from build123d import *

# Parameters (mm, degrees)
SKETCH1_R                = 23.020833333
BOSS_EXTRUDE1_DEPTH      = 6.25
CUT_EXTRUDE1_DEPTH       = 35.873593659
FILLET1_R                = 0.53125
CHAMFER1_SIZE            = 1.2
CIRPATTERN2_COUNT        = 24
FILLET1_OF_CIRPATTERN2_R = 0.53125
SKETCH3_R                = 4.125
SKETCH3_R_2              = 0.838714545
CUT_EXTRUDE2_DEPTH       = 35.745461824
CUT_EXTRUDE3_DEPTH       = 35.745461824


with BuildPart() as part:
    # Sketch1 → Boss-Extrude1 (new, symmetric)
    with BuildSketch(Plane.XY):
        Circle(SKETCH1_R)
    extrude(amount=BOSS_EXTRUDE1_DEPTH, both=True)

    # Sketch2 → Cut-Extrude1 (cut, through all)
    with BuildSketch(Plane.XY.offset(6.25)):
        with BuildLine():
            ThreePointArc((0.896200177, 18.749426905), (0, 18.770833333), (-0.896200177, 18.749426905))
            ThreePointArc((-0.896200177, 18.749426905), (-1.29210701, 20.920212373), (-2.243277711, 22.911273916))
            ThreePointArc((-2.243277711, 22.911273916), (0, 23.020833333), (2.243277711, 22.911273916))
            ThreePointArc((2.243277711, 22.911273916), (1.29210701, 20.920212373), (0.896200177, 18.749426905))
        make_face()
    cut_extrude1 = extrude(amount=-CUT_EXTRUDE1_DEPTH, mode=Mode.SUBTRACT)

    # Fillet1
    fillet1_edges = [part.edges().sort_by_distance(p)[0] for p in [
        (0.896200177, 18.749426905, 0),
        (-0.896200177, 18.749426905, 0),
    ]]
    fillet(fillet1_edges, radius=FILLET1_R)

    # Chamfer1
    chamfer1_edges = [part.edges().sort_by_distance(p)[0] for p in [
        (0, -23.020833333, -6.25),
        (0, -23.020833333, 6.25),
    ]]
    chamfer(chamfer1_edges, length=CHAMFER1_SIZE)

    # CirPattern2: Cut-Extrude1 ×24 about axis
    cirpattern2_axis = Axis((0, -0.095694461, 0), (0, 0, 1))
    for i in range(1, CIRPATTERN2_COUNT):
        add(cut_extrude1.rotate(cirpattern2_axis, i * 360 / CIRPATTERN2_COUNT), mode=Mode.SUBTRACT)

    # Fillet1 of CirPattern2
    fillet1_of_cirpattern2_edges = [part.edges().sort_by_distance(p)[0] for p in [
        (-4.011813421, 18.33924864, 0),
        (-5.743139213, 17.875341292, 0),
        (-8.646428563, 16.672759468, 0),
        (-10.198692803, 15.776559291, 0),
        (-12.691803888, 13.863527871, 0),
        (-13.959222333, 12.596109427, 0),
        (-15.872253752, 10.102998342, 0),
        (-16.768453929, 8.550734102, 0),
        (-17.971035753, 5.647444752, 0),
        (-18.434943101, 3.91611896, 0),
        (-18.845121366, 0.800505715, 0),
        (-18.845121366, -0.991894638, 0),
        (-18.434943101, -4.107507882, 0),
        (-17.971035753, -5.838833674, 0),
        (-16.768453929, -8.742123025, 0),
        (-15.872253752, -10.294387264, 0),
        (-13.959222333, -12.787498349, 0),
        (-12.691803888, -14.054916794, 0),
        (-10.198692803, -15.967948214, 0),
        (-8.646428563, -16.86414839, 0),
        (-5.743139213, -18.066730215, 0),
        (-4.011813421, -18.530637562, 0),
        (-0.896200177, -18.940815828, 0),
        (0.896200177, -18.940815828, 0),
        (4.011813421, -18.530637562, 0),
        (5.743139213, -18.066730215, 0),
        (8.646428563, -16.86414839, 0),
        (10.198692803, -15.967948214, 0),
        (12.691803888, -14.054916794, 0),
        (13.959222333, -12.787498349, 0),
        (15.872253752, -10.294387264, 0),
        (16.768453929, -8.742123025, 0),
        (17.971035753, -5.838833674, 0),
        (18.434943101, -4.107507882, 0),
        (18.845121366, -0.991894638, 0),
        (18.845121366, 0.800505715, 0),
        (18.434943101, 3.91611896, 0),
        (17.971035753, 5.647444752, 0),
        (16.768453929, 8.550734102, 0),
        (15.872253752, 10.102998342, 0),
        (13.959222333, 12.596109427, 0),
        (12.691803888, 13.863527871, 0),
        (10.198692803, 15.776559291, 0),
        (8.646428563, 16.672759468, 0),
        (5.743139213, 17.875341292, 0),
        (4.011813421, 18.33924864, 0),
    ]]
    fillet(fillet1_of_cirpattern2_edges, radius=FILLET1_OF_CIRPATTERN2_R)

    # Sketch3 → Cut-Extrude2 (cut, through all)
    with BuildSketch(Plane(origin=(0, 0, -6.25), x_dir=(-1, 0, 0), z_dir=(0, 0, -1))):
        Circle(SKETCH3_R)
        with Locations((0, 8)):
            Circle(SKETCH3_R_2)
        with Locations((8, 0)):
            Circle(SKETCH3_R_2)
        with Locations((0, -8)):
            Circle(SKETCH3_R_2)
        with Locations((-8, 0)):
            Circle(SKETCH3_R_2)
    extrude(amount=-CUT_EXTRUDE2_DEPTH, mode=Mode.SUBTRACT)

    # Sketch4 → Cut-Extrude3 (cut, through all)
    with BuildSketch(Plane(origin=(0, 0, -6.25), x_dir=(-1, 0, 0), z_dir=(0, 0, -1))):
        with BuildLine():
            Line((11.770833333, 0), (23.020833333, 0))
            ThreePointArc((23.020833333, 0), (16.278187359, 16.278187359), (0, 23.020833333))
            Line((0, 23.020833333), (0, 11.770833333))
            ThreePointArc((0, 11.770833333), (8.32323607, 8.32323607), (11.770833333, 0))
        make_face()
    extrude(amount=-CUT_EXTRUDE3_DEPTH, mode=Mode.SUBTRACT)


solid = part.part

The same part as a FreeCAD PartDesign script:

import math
import FreeCAD as App
import Part
import Sketcher


def edges_at(feature, points):
    """Names of the edges that pass closest to the given points."""
    edges = feature.Shape.Edges
    near = lambda p: min(range(len(edges)), key=lambda i: edges[i].distToShape(Part.Vertex(*p))[0])
    return sorted({f"Edge{near(p) + 1}" for p in points})

doc = App.newDocument("Part")
body = doc.addObject("PartDesign::Body", "Body")

# Sketch on XY plane
sketch1 = body.newObject("Sketcher::SketchObject", "Sketch")
sketch1.AttachmentSupport = (doc.getObject("XY_Plane"), [""])
sketch1.MapMode = "FlatFace"
sketch1.addGeometry(Part.Circle(App.Vector(0, 0, 0), App.Vector(0, 0, 1), 23), False)
sketch1.addConstraint(Sketcher.Constraint("Coincident", 0, 3, -1, 1))
sketch1.addConstraint(Sketcher.Constraint("Diameter", 0, 46.041667))
pad1 = body.newObject("PartDesign::Pad", "Pad")
pad1.Profile = sketch1
pad1.Length = 12.5
pad1.Midplane = True

# Sketch on XY plane
sketch2 = body.newObject("Sketcher::SketchObject", "Sketch001")
sketch2.AttachmentSupport = (doc.getObject("XY_Plane"), [""])
sketch2.MapMode = "FlatFace"
sketch2.AttachmentOffset = App.Placement(App.Vector(0, 0, 6.25), App.Rotation())
sketch2.addGeometry(Part.ArcOfCircle(Part.Circle(App.Vector(0, 0, 0), App.Vector(0, 0, 1), 18.8), math.radians(87.26), math.radians(92.74)), False)
sketch2.addGeometry(Part.ArcOfCircle(Part.Circle(App.Vector(9.2, 18.4, 0), App.Vector(0, 0, 1), 8.3), math.radians(147), math.radians(177)), False)
sketch2.addGeometry(Part.ArcOfCircle(Part.Circle(App.Vector(0, 0, 0), App.Vector(0, 0, 1), 23), math.radians(84.41), math.radians(95.59)), False)
sketch2.addGeometry(Part.ArcOfCircle(Part.Circle(App.Vector(-9.2, 18.4, 0), App.Vector(0, 0, 1), 8.3), math.radians(3), math.radians(33)), False)
sketch2.addConstraint(Sketcher.Constraint("Coincident", 0, 1, 1, 2))
sketch2.addConstraint(Sketcher.Constraint("Coincident", 1, 1, 2, 1))
sketch2.addConstraint(Sketcher.Constraint("Coincident", 2, 2, 3, 2))
sketch2.addConstraint(Sketcher.Constraint("Coincident", 3, 1, 0, 2))
sketch2.addConstraint(Sketcher.Constraint("Coincident", 0, 3, -1, 1))
sketch2.addConstraint(Sketcher.Constraint("Coincident", 2, 3, -1, 1))
sketch2.addConstraint(Sketcher.Constraint("Equal", 1, 3))
sketch2.addConstraint(Sketcher.Constraint("Symmetric", 1, 3, 3, 3, -2))
sketch2.addConstraint(Sketcher.Constraint("Radius", 1, 8.342768))
sketch2.addConstraint(Sketcher.Constraint("Radius", 0, 18.770834))
sketch2.addConstraint(Sketcher.Constraint("Radius", 2, 23.020833))
sketch2.addConstraint(Sketcher.Constraint("DistanceX", -1, 1, 0, 1, 0.8962))
sketch2.addConstraint(Sketcher.Constraint("DistanceX", 3, 3, 1, 3, 18.458908))
pocket1 = body.newObject("PartDesign::Pocket", "Pocket")
pocket1.Profile = sketch2
pocket1.Type = "ThroughAll"
doc.recompute()

fillet = body.newObject("PartDesign::Fillet", "Fillet")
fillet.Base = (pocket1, edges_at(pocket1, [(0.896, 18.749, 0), (-0.896, 18.749, 0)]))
fillet.Radius = 0.53125
doc.recompute()

chamfer = body.newObject("PartDesign::Chamfer", "Chamfer")
chamfer.Base = (fillet, edges_at(fillet, [(0, -23.021, -6.25), (0, -23.021, 6.25)]))
chamfer.Size = 1.2
doc.recompute()

datumline = body.newObject("PartDesign::Line", "DatumLine")
datumline.Placement = App.Placement(App.Vector(0, -0.095694, 0), App.Rotation(App.Vector(0, 0, 1), App.Vector(0, 0, 1)))
polarpattern = body.newObject("PartDesign::PolarPattern", "PolarPattern")
polarpattern.Originals = [pocket1]
polarpattern.Axis = (datumline, [""])
polarpattern.Angle = 360
polarpattern.Occurrences = 24
body.Tip = polarpattern
doc.recompute()

fillet2 = body.newObject("PartDesign::Fillet", "Fillet001")
fillet2.Base = (polarpattern, edges_at(polarpattern, [
    (-4.012, 18.339, 0),
    (-5.743, 17.875, 0),
    (-8.646, 16.673, 0),
    (-10.199, 15.777, 0),
    (-12.692, 13.864, 0),
    (-13.959, 12.596, 0),
    (-15.872, 10.103, 0),
    (-16.768, 8.551, 0),
    (-17.971, 5.647, 0),
    (-18.435, 3.916, 0),
    (-18.845, 0.801, 0),
    (-18.845, -0.992, 0),
    (-18.435, -4.108, 0),
    (-17.971, -5.839, 0),
    (-16.768, -8.742, 0),
    (-15.872, -10.294, 0),
    (-13.959, -12.787, 0),
    (-12.692, -14.055, 0),
    (-10.199, -15.968, 0),
    (-8.646, -16.864, 0),
    (-5.743, -18.067, 0),
    (-4.012, -18.531, 0),
    (-0.896, -18.941, 0),
    (0.896, -18.941, 0),
    (4.012, -18.531, 0),
    (5.743, -18.067, 0),
    (8.646, -16.864, 0),
    (10.199, -15.968, 0),
    (12.692, -14.055, 0),
    (13.959, -12.787, 0),
    (15.872, -10.294, 0),
    (16.768, -8.742, 0),
    (17.971, -5.839, 0),
    (18.435, -4.108, 0),
    (18.845, -0.992, 0),
    (18.845, 0.801, 0),
    (18.435, 3.916, 0),
    (17.971, 5.647, 0),
    (16.768, 8.551, 0),
    (15.872, 10.103, 0),
    (13.959, 12.596, 0),
    (12.692, 13.864, 0),
    (10.199, 15.777, 0),
    (8.646, 16.673, 0),
    (5.743, 17.875, 0),
    (4.012, 18.339, 0),
]))
fillet2.Radius = 0.53125

# Sketch on XY plane
sketch3 = body.newObject("Sketcher::SketchObject", "Sketch002")
sketch3.AttachmentSupport = (doc.getObject("XY_Plane"), [""])
sketch3.MapMode = "FlatFace"
sketch3.AttachmentOffset = App.Placement(App.Vector(0, 0, -6.25), App.Rotation())
sketch3.addGeometry(Part.Circle(App.Vector(0, 0, 0), App.Vector(0, 0, 1), 4.1), False)
sketch3.addGeometry(Part.Circle(App.Vector(0, 8, 0), App.Vector(0, 0, 1), 0.8), False)
sketch3.addGeometry(Part.Circle(App.Vector(-8, 0, 0), App.Vector(0, 0, 1), 0.8), False)
sketch3.addGeometry(Part.Circle(App.Vector(0, -8, 0), App.Vector(0, 0, 1), 0.8), False)
sketch3.addGeometry(Part.Circle(App.Vector(8, 0, 0), App.Vector(0, 0, 1), 0.8), False)
sketch3.addConstraint(Sketcher.Constraint("Coincident", 0, 3, -1, 1))
sketch3.addConstraint(Sketcher.Constraint("Equal", 1, 2))
sketch3.addConstraint(Sketcher.Constraint("Equal", 2, 3))
sketch3.addConstraint(Sketcher.Constraint("Equal", 3, 4))
sketch3.addConstraint(Sketcher.Constraint("Symmetric", 1, 3, 3, 3, -1, 1))
sketch3.addConstraint(Sketcher.Constraint("Symmetric", 2, 3, 4, 3, -1, 1))
sketch3.addConstraint(Sketcher.Constraint("PointOnObject", 1, 3, -2))
sketch3.addConstraint(Sketcher.Constraint("PointOnObject", 2, 3, -1))
sketch3.addConstraint(Sketcher.Constraint("Diameter", 0, 8.25))
sketch3.addConstraint(Sketcher.Constraint("DistanceY", -1, 1, 1, 3, 8.0))
sketch3.addConstraint(Sketcher.Constraint("DistanceX", 2, 3, -1, 1, 8.0))
sketch3.addConstraint(Sketcher.Constraint("Diameter", 1, 1.677429))
pocket2 = body.newObject("PartDesign::Pocket", "Pocket001")
pocket2.Profile = sketch3
pocket2.Type = "ThroughAll"
pocket2.Reversed = True

# Sketch on XY plane
sketch4 = body.newObject("Sketcher::SketchObject", "Sketch003")
sketch4.AttachmentSupport = (doc.getObject("XY_Plane"), [""])
sketch4.MapMode = "FlatFace"
sketch4.AttachmentOffset = App.Placement(App.Vector(0, 0, -6.25), App.Rotation())
sketch4.addGeometry(Part.LineSegment(App.Vector(-12, 0, 0), App.Vector(-23, 0, 0)), False)
sketch4.addGeometry(Part.ArcOfCircle(Part.Circle(App.Vector(0, 0, 0), App.Vector(0, 0, 1), 23), math.radians(90), math.radians(180)), False)
sketch4.addGeometry(Part.LineSegment(App.Vector(0, 23, 0), App.Vector(0, 12, 0)), False)
sketch4.addGeometry(Part.ArcOfCircle(Part.Circle(App.Vector(0, 0, 0), App.Vector(0, 0, 1), 12), math.radians(90), math.radians(180)), False)
sketch4.addConstraint(Sketcher.Constraint("Coincident", 0, 2, 1, 2))
sketch4.addConstraint(Sketcher.Constraint("Coincident", 1, 1, 2, 1))
sketch4.addConstraint(Sketcher.Constraint("Coincident", 2, 2, 3, 1))
sketch4.addConstraint(Sketcher.Constraint("Coincident", 3, 2, 0, 1))
sketch4.addConstraint(Sketcher.Constraint("Horizontal", 0))
sketch4.addConstraint(Sketcher.Constraint("Vertical", 2))
sketch4.addConstraint(Sketcher.Constraint("Coincident", 1, 3, -1, 1))
sketch4.addConstraint(Sketcher.Constraint("Coincident", 3, 3, -1, 1))
sketch4.addConstraint(Sketcher.Constraint("PointOnObject", 0, 2, -1))
sketch4.addConstraint(Sketcher.Constraint("PointOnObject", 1, 1, -2))
sketch4.addConstraint(Sketcher.Constraint("DistanceX", 0, 2, 0, 1, 11.25))
sketch4.addConstraint(Sketcher.Constraint("Radius", 1, 23.020833))
pocket3 = body.newObject("PartDesign::Pocket", "Pocket002")
pocket3.Profile = sketch4
pocket3.Type = "ThroughAll"
pocket3.Reversed = True

doc.recompute()
